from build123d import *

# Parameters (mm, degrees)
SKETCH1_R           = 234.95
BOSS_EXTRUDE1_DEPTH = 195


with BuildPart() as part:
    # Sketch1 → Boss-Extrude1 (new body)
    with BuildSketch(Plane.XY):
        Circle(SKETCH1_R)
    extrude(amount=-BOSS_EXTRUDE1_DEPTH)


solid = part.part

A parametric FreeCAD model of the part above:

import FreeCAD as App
import Part
import Sketcher
from FreeCAD import Vector
Q = App.Units.Quantity

doc = App.newDocument("Part")
body = doc.addObject("PartDesign::Body", "Body")

sketch1 = doc.addObject("Sketcher::SketchObject", "Sketch")
body.addObject(sketch1)
sketch1.AttachmentSupport = (doc.XY_Plane, [""])
sketch1.MapMode = "FlatFace"
sketch1.addGeometry(Part.Circle(Vector(0, 0, 0), Vector(0, 0, 1), 235), False)
sketch1.addConstraint([
    Sketcher.Constraint("Coincident", 0, 3, -1, 1),
    Sketcher.Constraint("Diameter", 0, Q("469.9 mm")),
])
pad1 = doc.addObject("PartDesign::Pad", "Pad")
body.addObject(pad1)
pad1.Profile = sketch1
pad1.Length = 195
pad1.Reversed = True

doc.recompute()
